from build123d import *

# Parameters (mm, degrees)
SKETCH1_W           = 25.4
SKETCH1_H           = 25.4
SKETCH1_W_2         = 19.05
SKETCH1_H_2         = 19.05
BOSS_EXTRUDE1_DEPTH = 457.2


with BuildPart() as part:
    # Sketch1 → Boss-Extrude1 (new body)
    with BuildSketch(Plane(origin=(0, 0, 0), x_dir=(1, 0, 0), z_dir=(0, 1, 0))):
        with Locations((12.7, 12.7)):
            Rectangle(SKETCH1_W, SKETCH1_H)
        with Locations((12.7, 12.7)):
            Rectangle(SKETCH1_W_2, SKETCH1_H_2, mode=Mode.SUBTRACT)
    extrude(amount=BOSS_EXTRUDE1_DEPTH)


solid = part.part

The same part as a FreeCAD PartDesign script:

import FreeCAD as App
import Part
import Sketcher

V = App.Vector
Q = App.Units.Quantity

doc = App.newDocument("Part")
body = doc.addObject("PartDesign::Body", "Body")

sketch1 = doc.addObject("Sketcher::SketchObject", "Sketch")
body.addObject(sketch1)
sketch1.AttachmentSupport = (doc.XZ_Plane, [""])
sketch1.MapMode = "FlatFace"
sketch1.addGeometry(Part.LineSegment(V(0, -25, 0), V(0, 0, 0)), False)
sketch1.addGeometry(Part.LineSegment(V(0, 0, 0), V(25, 0, 0)), False)
sketch1.addGeometry(Part.LineSegment(V(25, 0, 0), V(25, -25, 0)), False)
sketch1.addGeometry(Part.LineSegment(V(25, -25, 0), V(0, -25, 0)), False)
sketch1.addGeometry(Part.LineSegment(V(22, -3, 0), V(3, -3, 0)), False)
sketch1.addGeometry(Part.LineSegment(V(3, -3, 0), V(3, -22, 0)), False)
sketch1.addGeometry(Part.LineSegment(V(3, -22, 0), V(22, -22, 0)), False)
sketch1.addGeometry(Part.LineSegment(V(22, -22, 0), V(22, -3, 0)), False)
sketch1.addConstraint(Sketcher.Constraint("Coincident", 0, 2, 1, 1))
sketch1.addConstraint(Sketcher.Constraint("Coincident", 1, 2, 2, 1))
sketch1.addConstraint(Sketcher.Constraint("Coincident", 2, 2, 3, 1))
sketch1.addConstraint(Sketcher.Constraint("Coincident", 3, 2, 0, 1))
sketch1.addConstraint(Sketcher.Constraint("Coincident", 4, 2, 5, 1))
sketch1.addConstraint(Sketcher.Constraint("Coincident", 5, 2, 6, 1))
sketch1.addConstraint(Sketcher.Constraint("Coincident", 6, 2, 7, 1))
sketch1.addConstraint(Sketcher.Constraint("Coincident", 7, 2, 4, 1))
sketch1.addConstraint(Sketcher.Constraint("Vertical", 0))
sketch1.addConstraint(Sketcher.Constraint("Horizontal", 1))
sketch1.addConstraint(Sketcher.Constraint("Vertical", 2))
sketch1.addConstraint(Sketcher.Constraint("Horizontal", 3))
sketch1.addConstraint(Sketcher.Constraint("Horizontal", 4))
sketch1.addConstraint(Sketcher.Constraint("Vertical", 5))
sketch1.addConstraint(Sketcher.Constraint("Horizontal", 6))
sketch1.addConstraint(Sketcher.Constraint("Vertical", 7))
sketch1.addConstraint(Sketcher.Constraint("Coincident", 0, 2, -1, 1))
sketch1.addConstraint(Sketcher.Constraint("Equal", 3, 0))
sketch1.addConstraint(Sketcher.Constraint("Equal", 6, 5))
sketch1.addConstraint(Sketcher.Constraint("DistanceX", 1, 1, 1, 2, Q("1 in")))
sketch1.addConstraint(Sketcher.Constraint("DistanceX", 4, 2, 4, 1, Q("0.75 in")))
sketch1.addConstraint(Sketcher.Constraint("DistanceX", -1, 1, 4, 2, Q("0.125 in")))
sketch1.addConstraint(Sketcher.Constraint("DistanceY", 4, 2, -1, 1, Q("0.125 in")))
pad1 = doc.addObject("PartDesign::Pad", "Pad")
body.addObject(pad1)
pad1.Profile = sketch1
pad1.Length = Q("18 in")
pad1.Reversed = True

doc.recompute()
